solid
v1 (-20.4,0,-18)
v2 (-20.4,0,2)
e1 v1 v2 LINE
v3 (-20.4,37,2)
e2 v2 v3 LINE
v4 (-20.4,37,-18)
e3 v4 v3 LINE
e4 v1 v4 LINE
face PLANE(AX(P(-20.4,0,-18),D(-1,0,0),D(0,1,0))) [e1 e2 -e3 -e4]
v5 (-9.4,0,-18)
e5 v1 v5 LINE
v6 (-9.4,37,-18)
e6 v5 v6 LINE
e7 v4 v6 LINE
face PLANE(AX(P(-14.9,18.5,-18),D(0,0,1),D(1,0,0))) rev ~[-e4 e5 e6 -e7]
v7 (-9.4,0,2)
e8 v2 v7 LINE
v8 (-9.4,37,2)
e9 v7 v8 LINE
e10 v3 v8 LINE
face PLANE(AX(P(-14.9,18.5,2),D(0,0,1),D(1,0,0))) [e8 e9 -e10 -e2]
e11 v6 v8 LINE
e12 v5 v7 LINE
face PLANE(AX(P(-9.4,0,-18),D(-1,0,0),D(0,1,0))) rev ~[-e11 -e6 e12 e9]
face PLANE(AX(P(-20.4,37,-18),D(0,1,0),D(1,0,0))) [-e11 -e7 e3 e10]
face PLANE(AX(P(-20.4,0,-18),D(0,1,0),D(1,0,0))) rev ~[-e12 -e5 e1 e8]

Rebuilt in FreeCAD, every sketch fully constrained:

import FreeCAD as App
import Part
import Sketcher

V = App.Vector

doc = App.newDocument("Part")
params = doc.addObject("Spreadsheet::Sheet", "Params")
for row, (alias, value) in enumerate([
    ("sketch1_width", "6 mm"),
    ("sketch1_height", "19 mm"),
    ("pad1_length", "6 mm"),
    ("sketch2_width", "11 mm"),
    ("sketch2_height", "37 mm"),
    ("pad2_length", "20 mm"),
], start=1):
    params.set(f"A{row}", alias)
    params.set(f"B{row}", "=" + value)
    params.setAlias(f"B{row}", alias)

body = doc.addObject("PartDesign::Body", "Body")

sketch1 = body.newObject("Sketcher::SketchObject", "Sketch")
sketch1.AttachmentSupport = (doc.getObject("XY_Plane"), [""])
sketch1.MapMode = "FlatFace"
sketch1.AttachmentOffset = App.Placement(V(0, 0, 2), App.Rotation())
sketch1.addGeometry([
    Part.LineSegment(V(-20, 37, 0), V(-20, 18, 0)),
    Part.LineSegment(V(-20, 18, 0), V(-14, 18, 0)),
    Part.LineSegment(V(-14, 18, 0), V(-14, 37, 0)),
    Part.LineSegment(V(-14, 37, 0), V(-20, 37, 0)),
], False)
sketch1.addConstraint([
    Sketcher.Constraint("Coincident", 0, 2, 1, 1),
    Sketcher.Constraint("Coincident", 1, 2, 2, 1),
    Sketcher.Constraint("Coincident", 2, 2, 3, 1),
    Sketcher.Constraint("Coincident", 3, 2, 0, 1),
    Sketcher.Constraint("Vertical", 0),
    Sketcher.Constraint("Horizontal", 1),
    Sketcher.Constraint("Vertical", 2),
    Sketcher.Constraint("Horizontal", 3),
    Sketcher.Constraint("DistanceX", 1, 1, 1, 2, 6.0),
    Sketcher.Constraint("DistanceY", 0, 2, 0, 1, 19.0),
    Sketcher.Constraint("DistanceY", -1, 1, 0, 2, 18.0),
    Sketcher.Constraint("DistanceX", 0, 2, -1, 1, 20.2),
])
sketch1.setExpression("Constraints[8]", "Params.sketch1_width")
sketch1.setExpression("Constraints[9]", "Params.sketch1_height")
pad1 = body.newObject("PartDesign::Pad", "Pad")
pad1.Profile = sketch1
pad1.setExpression("Length", "Params.pad1_length")
body2 = doc.addObject("PartDesign::Body", "Body001")

sketch2 = body2.newObject("Sketcher::SketchObject", "Sketch001")
sketch2.AttachmentSupport = (doc.getObject("XY_Plane001"), [""])
sketch2.MapMode = "FlatFace"
sketch2.AttachmentOffset = App.Placement(V(0, 0, -18), App.Rotation())
sketch2.addGeometry([
    Part.LineSegment(V(-20, 37, 0), V(-20, 0, 0)),
    Part.LineSegment(V(-20, 0, 0), V(-9, 0, 0)),
    Part.LineSegment(V(-9, 0, 0), V(-9, 37, 0)),
    Part.LineSegment(V(-9, 37, 0), V(-20, 37, 0)),
], False)
sketch2.addConstraint([
    Sketcher.Constraint("Coincident", 0, 2, 1, 1),
    Sketcher.Constraint("Coincident", 1, 2, 2, 1),
    Sketcher.Constraint("Coincident", 2, 2, 3, 1),
    Sketcher.Constraint("Coincident", 3, 2, 0, 1),
    Sketcher.Constraint("Vertical", 0),
    Sketcher.Constraint("Horizontal", 1),
    Sketcher.Constraint("Vertical", 2),
    Sketcher.Constraint("Horizontal", 3),
    Sketcher.Constraint("PointOnObject", 0, 2, -1),
    Sketcher.Constraint("DistanceX", 1, 1, 1, 2, 11.0),
    Sketcher.Constraint("DistanceY", 0, 2, 0, 1, 37.0),
    Sketcher.Constraint("DistanceX", 0, 2, -1, 1, 20.4),
])
sketch2.setExpression("Constraints[9]", "Params.sketch2_width")
sketch2.setExpression("Constraints[10]", "Params.sketch2_height")
pad2 = body2.newObject("PartDesign::Pad", "Pad001")
pad2.Profile = sketch2
pad2.setExpression("Length", "Params.pad2_length")
doc.recompute()

boolean = body2.newObject("PartDesign::Boolean", "Boolean")
boolean.Type = "Cut"
boolean.addObjects([body])

doc.recompute()
